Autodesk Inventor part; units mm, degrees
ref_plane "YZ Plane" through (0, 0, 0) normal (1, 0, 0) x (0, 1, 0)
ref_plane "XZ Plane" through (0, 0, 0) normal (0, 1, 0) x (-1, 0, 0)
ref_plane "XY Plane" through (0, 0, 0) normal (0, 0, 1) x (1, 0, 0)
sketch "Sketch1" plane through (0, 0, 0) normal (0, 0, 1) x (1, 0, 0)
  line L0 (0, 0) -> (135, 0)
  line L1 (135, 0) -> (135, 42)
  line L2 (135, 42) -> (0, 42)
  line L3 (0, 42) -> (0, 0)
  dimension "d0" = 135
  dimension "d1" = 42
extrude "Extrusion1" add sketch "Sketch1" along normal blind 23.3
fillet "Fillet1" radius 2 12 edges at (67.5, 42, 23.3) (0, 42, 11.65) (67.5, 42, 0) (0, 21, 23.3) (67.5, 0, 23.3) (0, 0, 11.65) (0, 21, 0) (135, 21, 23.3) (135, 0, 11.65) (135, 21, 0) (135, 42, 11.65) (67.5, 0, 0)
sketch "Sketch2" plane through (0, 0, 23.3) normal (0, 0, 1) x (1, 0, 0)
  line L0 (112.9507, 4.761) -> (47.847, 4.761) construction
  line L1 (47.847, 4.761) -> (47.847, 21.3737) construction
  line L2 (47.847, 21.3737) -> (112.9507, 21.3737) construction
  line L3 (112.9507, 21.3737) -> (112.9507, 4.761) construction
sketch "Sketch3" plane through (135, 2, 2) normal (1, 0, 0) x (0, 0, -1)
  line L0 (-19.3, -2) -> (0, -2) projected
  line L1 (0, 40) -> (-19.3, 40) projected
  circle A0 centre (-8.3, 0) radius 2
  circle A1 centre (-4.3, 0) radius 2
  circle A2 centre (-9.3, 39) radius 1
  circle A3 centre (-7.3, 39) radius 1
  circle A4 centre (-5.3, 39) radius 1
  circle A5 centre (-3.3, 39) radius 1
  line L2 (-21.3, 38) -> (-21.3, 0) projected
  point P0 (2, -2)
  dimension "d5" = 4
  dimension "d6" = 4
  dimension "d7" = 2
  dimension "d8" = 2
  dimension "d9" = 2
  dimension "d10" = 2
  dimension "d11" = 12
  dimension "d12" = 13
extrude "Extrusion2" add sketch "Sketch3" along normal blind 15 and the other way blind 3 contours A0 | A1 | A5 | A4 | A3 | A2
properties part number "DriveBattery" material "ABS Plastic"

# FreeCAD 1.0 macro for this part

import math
import FreeCAD as App
import Part
import Sketcher

V = App.Vector


def add_polygon(sketch, points):
    """Adds a closed chain of lines whose ends are joined by coincident constraints."""
    first, n = sketch.GeometryCount, len(points)
    for a, b in zip(points, points[1:] + points[:1]):
        sketch.addGeometry(Part.LineSegment(App.Vector(*a, 0), App.Vector(*b, 0)), False)
    for i in range(n):
        sketch.addConstraint(Sketcher.Constraint("Coincident", first + i, 2, first + (i + 1) % n, 1))

doc = App.newDocument("Part")
body = doc.addObject("PartDesign::Body", "Body")

# Sketch on XY plane
sketch1 = body.newObject("Sketcher::SketchObject", "Sketch")
sketch1.AttachmentSupport = (doc.getObject("XY_Plane"), [""])
sketch1.MapMode = "FlatFace"
add_polygon(sketch1, [(0, 42), (0, 0), (135, 0), (135, 42)])  # lines 0-3
sketch1.addConstraint(Sketcher.Constraint("Vertical", 0))
sketch1.addConstraint(Sketcher.Constraint("Horizontal", 1))
sketch1.addConstraint(Sketcher.Constraint("Vertical", 2))
sketch1.addConstraint(Sketcher.Constraint("Horizontal", 3))
sketch1.addConstraint(Sketcher.Constraint("Coincident", 0, 2, -1, 1))
sketch1.addConstraint(Sketcher.Constraint("DistanceX", 1, 1, 1, 2, 135.0))
sketch1.addConstraint(Sketcher.Constraint("DistanceY", 0, 2, 0, 1, 42.0))
pad1 = body.newObject("PartDesign::Pad", "Pad")
pad1.Profile = sketch1
pad1.Length = 23.3
doc.recompute()

fillet = body.newObject("PartDesign::Fillet", "Fillet")
fillet.Base = (pad1, ["Edge1"])
fillet.UseAllEdges = True
fillet.Radius = 2

# Sketch on YZ plane
sketch2 = body.newObject("Sketcher::SketchObject", "Sketch001")
sketch2.AttachmentSupport = (doc.getObject("YZ_Plane"), [""])
sketch2.MapMode = "FlatFace"
sketch2.AttachmentOffset = App.Placement(V(0, 0, 135), App.Rotation())
sketch2.addGeometry(Part.Circle(V(2, 10.3, 0), V(0, 0, 1), 2), False)
sketch2.addGeometry(Part.Circle(V(2, 6.3, 0), V(0, 0, 1), 2), False)
sketch2.addGeometry(Part.Circle(V(41, 5.3, 0), V(0, 0, 1), 1), False)
sketch2.addGeometry(Part.ArcOfCircle(Part.Circle(V(41, 7.3, 0), V(0, 0, 1), 1), math.radians(-90), math.radians(90)), False)
sketch2.addGeometry(Part.ArcOfCircle(Part.Circle(V(41, 7.3, 0), V(0, 0, 1), 1), math.radians(90), math.radians(270)), False)
sketch2.addGeometry(Part.ArcOfCircle(Part.Circle(V(41, 9.3, 0), V(0, 0, 1), 1), math.radians(-90), math.radians(90)), False)
sketch2.addGeometry(Part.ArcOfCircle(Part.Circle(V(41, 9.3, 0), V(0, 0, 1), 1), math.radians(90), math.radians(270)), False)
sketch2.addGeometry(Part.Circle(V(41, 11.3, 0), V(0, 0, 1), 1), False)
sketch2.addConstraint(Sketcher.Constraint("Tangent", 3, 1, 4, 2))
sketch2.addConstraint(Sketcher.Constraint("Coincident", 4, 1, 3, 2))
sketch2.addConstraint(Sketcher.Constraint("Tangent", 5, 1, 6, 2))
sketch2.addConstraint(Sketcher.Constraint("Coincident", 6, 1, 5, 2))
sketch2.addConstraint(Sketcher.Constraint("Coincident", 5, 1, 4, 1))
sketch2.addConstraint(Sketcher.Constraint("Equal", 0, 1))
sketch2.addConstraint(Sketcher.Constraint("Equal", 2, 3))
sketch2.addConstraint(Sketcher.Constraint("Equal", 4, 5))
sketch2.addConstraint(Sketcher.Constraint("Equal", 6, 7))
sketch2.addConstraint(Sketcher.Constraint("Horizontal", 1, 3, 3, 1))
sketch2.addConstraint(Sketcher.Constraint("Horizontal", 0, 3, 6, 1))
sketch2.addConstraint(Sketcher.Constraint("Vertical", 0, 3, 1, 3))
sketch2.addConstraint(Sketcher.Constraint("Vertical", 2, 3, 3, 3))
sketch2.addConstraint(Sketcher.Constraint("Vertical", 4, 3, 5, 3))
sketch2.addConstraint(Sketcher.Constraint("Vertical", 6, 3, 7, 3))
sketch2.addConstraint(Sketcher.Constraint("Vertical", 7, 3, 3, 1))
sketch2.addConstraint(Sketcher.Constraint("Vertical", 3, 1, 4, 1))
sketch2.addConstraint(Sketcher.Constraint("Vertical", 5, 1, 6, 1))
sketch2.addConstraint(Sketcher.Constraint("Diameter", 0, 4.0))
sketch2.addConstraint(Sketcher.Constraint("Diameter", 2, 2.0))
sketch2.addConstraint(Sketcher.Constraint("DistanceX", -1, 1, 0, 3, 2.0))
sketch2.addConstraint(Sketcher.Constraint("DistanceY", 2, 3, 3, 3, 2.0))
sketch2.addConstraint(Sketcher.Constraint("DistanceY", 5, 3, 7, 3, 2.0))
sketch2.addConstraint(Sketcher.Constraint("DistanceX", -1, 1, 2, 3, 41.0))
sketch2.addConstraint(Sketcher.Constraint("DistanceY", -1, 1, 0, 3, 10.3))
pad2 = body.newObject("PartDesign::Pad", "Pad001")
pad2.Profile = sketch2
pad2.Type = "TwoLengths"
pad2.Length = 15
pad2.Length2 = 3

doc.recompute()
